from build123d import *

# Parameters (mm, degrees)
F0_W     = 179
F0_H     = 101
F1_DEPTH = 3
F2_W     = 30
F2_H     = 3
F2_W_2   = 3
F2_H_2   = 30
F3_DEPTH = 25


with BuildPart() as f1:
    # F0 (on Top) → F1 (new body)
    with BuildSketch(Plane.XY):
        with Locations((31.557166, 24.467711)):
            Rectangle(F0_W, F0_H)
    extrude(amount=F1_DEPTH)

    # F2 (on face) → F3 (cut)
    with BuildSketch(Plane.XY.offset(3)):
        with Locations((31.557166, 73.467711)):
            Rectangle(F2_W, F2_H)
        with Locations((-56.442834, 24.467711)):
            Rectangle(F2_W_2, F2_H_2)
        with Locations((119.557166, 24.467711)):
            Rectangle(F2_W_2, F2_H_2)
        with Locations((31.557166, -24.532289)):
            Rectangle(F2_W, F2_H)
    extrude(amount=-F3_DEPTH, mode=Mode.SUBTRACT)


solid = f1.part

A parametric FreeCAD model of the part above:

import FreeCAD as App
import Part
import Sketcher

V = App.Vector

doc = App.newDocument("Part")
body = doc.addObject("PartDesign::Body", "Body")

# Sketch on XY plane
sketch1 = body.newObject("Sketcher::SketchObject", "Sketch")
sketch1.AttachmentSupport = (doc.getObject("XY_Plane"), [""])
sketch1.MapMode = "FlatFace"
sketch1.addGeometry([
    Part.LineSegment(V(-58, 75, 0), V(-58, -26, 0)),
    Part.LineSegment(V(-58, -26, 0), V(121, -26, 0)),
    Part.LineSegment(V(121, -26, 0), V(121, 75, 0)),
    Part.LineSegment(V(121, 75, 0), V(-58, 75, 0)),
], False)
sketch1.addConstraint([
    Sketcher.Constraint("Coincident", 0, 2, 1, 1),
    Sketcher.Constraint("Coincident", 1, 2, 2, 1),
    Sketcher.Constraint("Coincident", 2, 2, 3, 1),
    Sketcher.Constraint("Coincident", 3, 2, 0, 1),
    Sketcher.Constraint("Vertical", 0),
    Sketcher.Constraint("Horizontal", 1),
    Sketcher.Constraint("Vertical", 2),
    Sketcher.Constraint("Horizontal", 3),
    Sketcher.Constraint("DistanceX", 1, 1, 1, 2, 179.0),
    Sketcher.Constraint("DistanceY", 0, 2, 0, 1, 101.0),
    Sketcher.Constraint("DistanceY", 0, 2, -1, 1, 26.032289),
    Sketcher.Constraint("DistanceX", 0, 2, -1, 1, 57.942834),
])
pad1 = body.newObject("PartDesign::Pad", "Pad")
pad1.Profile = sketch1
pad1.Length = 3

# Sketch on XY plane
sketch2 = body.newObject("Sketcher::SketchObject", "Sketch001")
sketch2.AttachmentSupport = (doc.getObject("XY_Plane"), [""])
sketch2.MapMode = "FlatFace"
sketch2.AttachmentOffset = App.Placement(V(0, 0, 3), App.Rotation())
sketch2.addGeometry([
    Part.LineSegment(V(16.6, 75, 0), V(16.6, 72, 0)),  # 0
    Part.LineSegment(V(16.6, 72, 0), V(46.6, 72, 0)),  # 1
    Part.LineSegment(V(46.6, 72, 0), V(46.6, 75, 0)),  # 2
    Part.LineSegment(V(46.6, 75, 0), V(16.6, 75, 0)),  # 3
    Part.LineSegment(V(-57.9, 39.5, 0), V(-57.9, 9.5, 0)),  # 4
    Part.LineSegment(V(-57.9, 9.5, 0), V(-54.9, 9.5, 0)),  # 5
    Part.LineSegment(V(-54.9, 9.5, 0), V(-54.9, 39.5, 0)),  # 6
    Part.LineSegment(V(-54.9, 39.5, 0), V(-57.9, 39.5, 0)),  # 7
    Part.LineSegment(V(118.1, 39.5, 0), V(118.1, 9.5, 0)),  # 8
    Part.LineSegment(V(118.1, 9.5, 0), V(121.1, 9.5, 0)),  # 9
    Part.LineSegment(V(121.1, 9.5, 0), V(121.1, 39.5, 0)),  # 10
    Part.LineSegment(V(121.1, 39.5, 0), V(118.1, 39.5, 0)),  # 11
    Part.LineSegment(V(16.6, -23, 0), V(16.6, -26, 0)),  # 12
    Part.LineSegment(V(16.6, -26, 0), V(46.6, -26, 0)),  # 13
    Part.LineSegment(V(46.6, -26, 0), V(46.6, -23, 0)),  # 14
    Part.LineSegment(V(46.6, -23, 0), V(16.6, -23, 0)),  # 15
], False)
sketch2.addConstraint([
    Sketcher.Constraint("Coincident", 0, 2, 1, 1),
    Sketcher.Constraint("Coincident", 1, 2, 2, 1),
    Sketcher.Constraint("Coincident", 2, 2, 3, 1),
    Sketcher.Constraint("Coincident", 3, 2, 0, 1),
    Sketcher.Constraint("Coincident", 4, 2, 5, 1),
    Sketcher.Constraint("Coincident", 5, 2, 6, 1),
    Sketcher.Constraint("Coincident", 6, 2, 7, 1),
    Sketcher.Constraint("Coincident", 7, 2, 4, 1),
    Sketcher.Constraint("Coincident", 8, 2, 9, 1),
    Sketcher.Constraint("Coincident", 9, 2, 10, 1),
    Sketcher.Constraint("Coincident", 10, 2, 11, 1),
    Sketcher.Constraint("Coincident", 11, 2, 8, 1),
    Sketcher.Constraint("Coincident", 12, 2, 13, 1),
    Sketcher.Constraint("Coincident", 13, 2, 14, 1),
    Sketcher.Constraint("Coincident", 14, 2, 15, 1),
    Sketcher.Constraint("Coincident", 15, 2, 12, 1),
    Sketcher.Constraint("Vertical", 0),
    Sketcher.Constraint("Horizontal", 1),
    Sketcher.Constraint("Vertical", 2),
    Sketcher.Constraint("Horizontal", 3),
    Sketcher.Constraint("Vertical", 4),
    Sketcher.Constraint("Horizontal", 5),
    Sketcher.Constraint("Vertical", 6),
    Sketcher.Constraint("Horizontal", 7),
    Sketcher.Constraint("Vertical", 8),
    Sketcher.Constraint("Horizontal", 9),
    Sketcher.Constraint("Vertical", 10),
    Sketcher.Constraint("Horizontal", 11),
    Sketcher.Constraint("Vertical", 12),
    Sketcher.Constraint("Horizontal", 13),
    Sketcher.Constraint("Vertical", 14),
    Sketcher.Constraint("Horizontal", 15),
    Sketcher.Constraint("Horizontal", 5, 2, 8, 2),
    Sketcher.Constraint("Horizontal", 7, 2, 10, 2),
    Sketcher.Constraint("Vertical", 3, 2, 12, 2),
    Sketcher.Constraint("Vertical", 2, 2, 13, 2),
    Sketcher.Constraint("Equal", 7, 9),
    Sketcher.Constraint("Equal", 11, 0),
    Sketcher.Constraint("Equal", 15, 4),
    Sketcher.Constraint("Equal", 2, 12),
    Sketcher.Constraint("DistanceX", 1, 1, 1, 2, 30.0),
    Sketcher.Constraint("DistanceX", 5, 1, 5, 2, 3.0),
    Sketcher.Constraint("DistanceX", 5, 2, 8, 2, 173.0),
    Sketcher.Constraint("DistanceY", 12, 2, 0, 2, 98.0),
    Sketcher.Constraint("DistanceX", 4, 2, 0, 2, 74.5),
    Sketcher.Constraint("DistanceY", 4, 2, 0, 2, 62.5),
    Sketcher.Constraint("DistanceY", -1, 1, 0, 2, 71.967711),
    Sketcher.Constraint("DistanceX", -1, 1, 0, 2, 16.557166),
])
pocket1 = body.newObject("PartDesign::Pocket", "Pocket")
pocket1.Profile = sketch2
pocket1.Length = 25

doc.recompute()
